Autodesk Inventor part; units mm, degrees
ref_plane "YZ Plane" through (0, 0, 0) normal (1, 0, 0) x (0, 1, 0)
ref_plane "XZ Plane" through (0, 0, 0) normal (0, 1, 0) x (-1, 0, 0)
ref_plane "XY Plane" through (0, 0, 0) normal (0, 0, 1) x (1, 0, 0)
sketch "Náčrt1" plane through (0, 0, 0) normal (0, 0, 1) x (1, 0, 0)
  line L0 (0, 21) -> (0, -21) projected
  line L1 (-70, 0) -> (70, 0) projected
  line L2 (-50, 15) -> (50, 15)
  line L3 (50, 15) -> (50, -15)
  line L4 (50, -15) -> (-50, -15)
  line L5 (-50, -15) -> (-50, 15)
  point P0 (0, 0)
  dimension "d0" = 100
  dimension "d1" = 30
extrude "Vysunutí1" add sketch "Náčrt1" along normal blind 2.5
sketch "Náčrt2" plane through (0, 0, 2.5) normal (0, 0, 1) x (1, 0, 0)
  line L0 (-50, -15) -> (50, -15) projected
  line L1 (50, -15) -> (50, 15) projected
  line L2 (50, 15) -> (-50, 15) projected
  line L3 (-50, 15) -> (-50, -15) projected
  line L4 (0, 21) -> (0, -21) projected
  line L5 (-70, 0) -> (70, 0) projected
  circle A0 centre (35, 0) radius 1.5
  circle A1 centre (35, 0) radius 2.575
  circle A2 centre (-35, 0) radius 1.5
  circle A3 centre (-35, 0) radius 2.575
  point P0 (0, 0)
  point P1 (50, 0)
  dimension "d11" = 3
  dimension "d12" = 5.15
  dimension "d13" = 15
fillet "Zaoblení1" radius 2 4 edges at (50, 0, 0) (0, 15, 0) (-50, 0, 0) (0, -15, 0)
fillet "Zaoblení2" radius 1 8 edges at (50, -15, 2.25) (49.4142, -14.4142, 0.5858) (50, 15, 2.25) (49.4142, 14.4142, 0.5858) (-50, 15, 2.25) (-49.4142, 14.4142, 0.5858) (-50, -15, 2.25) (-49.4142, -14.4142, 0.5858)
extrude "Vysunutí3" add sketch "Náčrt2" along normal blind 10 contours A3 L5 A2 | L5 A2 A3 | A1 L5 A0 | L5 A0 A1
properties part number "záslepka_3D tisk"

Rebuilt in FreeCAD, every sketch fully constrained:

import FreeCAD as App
import Part
import Sketcher
from FreeCAD import Vector


def edges_at(feature, points):
    """Names of the edges that pass closest to the given points."""
    edges = feature.Shape.Edges
    near = lambda p: min(range(len(edges)), key=lambda i: edges[i].distToShape(Part.Vertex(*p))[0])
    return sorted({f"Edge{near(p) + 1}" for p in points})


def add_polygon(sketch, points):
    """Adds a closed chain of lines whose ends are joined by coincident constraints."""
    first, n = sketch.GeometryCount, len(points)
    for a, b in zip(points, points[1:] + points[:1]):
        sketch.addGeometry(Part.LineSegment(App.Vector(*a, 0), App.Vector(*b, 0)), False)
    for i in range(n):
        sketch.addConstraint(Sketcher.Constraint("Coincident", first + i, 2, first + (i + 1) % n, 1))

doc = App.newDocument("Part")
params = doc.addObject("Spreadsheet::Sheet", "Params")
for row, (alias, value) in enumerate([
    ("sketch1_width", "100 mm"),
    ("sketch1_height", "30 mm"),
    ("pad1_length", "2.5 mm"),
    ("fillet_radius", "2 mm"),
    ("fillet2_radius", "1 mm"),
    ("sketch2_diameter", "3 mm"),
    ("sketch2_diameter2", "5.15 mm"),
    ("pad2_length", "10 mm"),
], start=1):
    params.set(f"A{row}", alias)
    params.set(f"B{row}", "=" + value)
    params.setAlias(f"B{row}", alias)

body = doc.addObject("PartDesign::Body", "Body")

# Sketch on XY plane
sketch1 = body.newObject("Sketcher::SketchObject", "Sketch")
sketch1.AttachmentSupport = (doc.getObject("XY_Plane"), [""])
sketch1.MapMode = "FlatFace"
add_polygon(sketch1, [(50, 15), (-50, 15), (-50, -15), (50, -15)])  # lines 0-3
sketch1.addConstraint([
    Sketcher.Constraint("Horizontal", 0),
    Sketcher.Constraint("Vertical", 1),
    Sketcher.Constraint("Horizontal", 2),
    Sketcher.Constraint("Vertical", 3),
    Sketcher.Constraint("Symmetric", 0, 2, 2, 2, -1, 1),
    Sketcher.Constraint("DistanceX", 0, 2, 0, 1, 100.0),
    Sketcher.Constraint("DistanceY", 1, 2, 1, 1, 30.0),
])
sketch1.setExpression("Constraints[9]", "Params.sketch1_width")
sketch1.setExpression("Constraints[10]", "Params.sketch1_height")
pad1 = body.newObject("PartDesign::Pad", "Pad")
pad1.Profile = sketch1
pad1.setExpression("Length", "Params.pad1_length")
doc.recompute()

fillet = body.newObject("PartDesign::Fillet", "Fillet")
fillet.Base = (pad1, edges_at(pad1, [
    (50, 0, 0),
    (0, 15, 0),
    (-50, 0, 0),
    (0, -15, 0),
]))
fillet.setExpression("Radius", "Params.fillet_radius")
doc.recompute()

fillet2 = body.newObject("PartDesign::Fillet", "Fillet001")
fillet2.Base = (fillet, edges_at(fillet, [
    (50, -15, 2.25),
    (49.414, -14.414, 0.586),
    (50, 15, 2.25),
    (49.414, 14.414, 0.586),
    (-50, 15, 2.25),
    (-49.414, 14.414, 0.586),
    (-50, -15, 2.25),
    (-49.414, -14.414, 0.586),
]))
fillet2.setExpression("Radius", "Params.fillet2_radius")

# Sketch on XY plane
sketch2 = body.newObject("Sketcher::SketchObject", "Sketch001")
sketch2.AttachmentSupport = (doc.getObject("XY_Plane"), [""])
sketch2.MapMode = "FlatFace"
sketch2.AttachmentOffset = App.Placement(Vector(0, 0, 2.5), App.Rotation())
sketch2.addGeometry([
    Part.Circle(Vector(-35, 0, 0), Vector(0, 0, 1), 2.6),
    Part.Circle(Vector(-35, 0, 0), Vector(0, 0, 1), 1.5),
    Part.Circle(Vector(35, 0, 0), Vector(0, 0, 1), 2.6),
    Part.Circle(Vector(35, 0, 0), Vector(0, 0, 1), 1.5),
], False)
sketch2.addConstraint([
    Sketcher.Constraint("Coincident", 1, 3, 0, 3),
    Sketcher.Constraint("Coincident", 3, 3, 2, 3),
    Sketcher.Constraint("Equal", 0, 2),
    Sketcher.Constraint("Equal", 1, 3),
    Sketcher.Constraint("Symmetric", 0, 3, 2, 3, -1, 1),
    Sketcher.Constraint("PointOnObject", 0, 3, -1),
    Sketcher.Constraint("Diameter", 1, 3.0),
    Sketcher.Constraint("Diameter", 0, 5.15),
    Sketcher.Constraint("DistanceX", 0, 3, -1, 1, 35.0),
])
sketch2.setExpression("Constraints[6]", "Params.sketch2_diameter")
sketch2.setExpression("Constraints[7]", "Params.sketch2_diameter2")
pad2 = body.newObject("PartDesign::Pad", "Pad001")
pad2.Profile = sketch2
pad2.setExpression("Length", "Params.pad2_length")

doc.recompute()
